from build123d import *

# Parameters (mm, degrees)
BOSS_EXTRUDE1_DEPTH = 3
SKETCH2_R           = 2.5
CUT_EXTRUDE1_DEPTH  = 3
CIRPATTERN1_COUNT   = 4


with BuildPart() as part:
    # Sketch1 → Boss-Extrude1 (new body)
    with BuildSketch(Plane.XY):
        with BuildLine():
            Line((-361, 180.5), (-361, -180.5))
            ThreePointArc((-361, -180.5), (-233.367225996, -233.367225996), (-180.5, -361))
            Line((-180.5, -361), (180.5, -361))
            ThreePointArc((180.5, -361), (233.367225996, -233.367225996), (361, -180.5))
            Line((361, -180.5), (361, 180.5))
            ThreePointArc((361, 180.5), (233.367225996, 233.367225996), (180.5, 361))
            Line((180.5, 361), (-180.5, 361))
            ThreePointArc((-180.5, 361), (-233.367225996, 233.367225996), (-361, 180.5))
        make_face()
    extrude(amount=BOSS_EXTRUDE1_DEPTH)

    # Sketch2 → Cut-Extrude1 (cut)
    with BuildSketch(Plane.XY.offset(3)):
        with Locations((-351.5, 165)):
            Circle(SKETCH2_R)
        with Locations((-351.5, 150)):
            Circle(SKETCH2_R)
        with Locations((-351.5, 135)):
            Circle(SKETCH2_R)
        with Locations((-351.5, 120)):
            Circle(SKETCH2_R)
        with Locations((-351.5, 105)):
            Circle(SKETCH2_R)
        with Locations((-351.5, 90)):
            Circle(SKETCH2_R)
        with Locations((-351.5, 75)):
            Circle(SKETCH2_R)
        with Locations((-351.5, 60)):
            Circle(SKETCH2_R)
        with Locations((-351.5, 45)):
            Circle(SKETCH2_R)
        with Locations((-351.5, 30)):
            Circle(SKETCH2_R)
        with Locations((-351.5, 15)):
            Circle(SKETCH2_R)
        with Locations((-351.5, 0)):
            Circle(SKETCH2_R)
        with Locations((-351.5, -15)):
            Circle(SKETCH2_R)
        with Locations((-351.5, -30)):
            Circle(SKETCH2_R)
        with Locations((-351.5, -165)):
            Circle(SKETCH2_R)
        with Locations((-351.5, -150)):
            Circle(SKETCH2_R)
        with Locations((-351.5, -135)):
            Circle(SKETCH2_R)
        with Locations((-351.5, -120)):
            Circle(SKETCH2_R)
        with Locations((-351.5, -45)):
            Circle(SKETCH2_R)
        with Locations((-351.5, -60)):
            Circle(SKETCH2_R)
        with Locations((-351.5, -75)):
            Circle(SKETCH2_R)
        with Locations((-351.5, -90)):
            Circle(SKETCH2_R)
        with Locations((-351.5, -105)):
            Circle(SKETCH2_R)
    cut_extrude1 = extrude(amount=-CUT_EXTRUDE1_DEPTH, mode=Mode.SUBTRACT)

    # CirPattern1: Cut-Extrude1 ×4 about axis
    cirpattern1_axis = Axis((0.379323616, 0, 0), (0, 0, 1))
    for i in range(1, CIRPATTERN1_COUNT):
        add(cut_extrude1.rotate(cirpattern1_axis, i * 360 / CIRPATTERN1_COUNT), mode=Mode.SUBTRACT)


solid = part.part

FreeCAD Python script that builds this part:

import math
import FreeCAD as App
import Part
import Sketcher

V = App.Vector

doc = App.newDocument("Part")
body = doc.addObject("PartDesign::Body", "Body")

# Sketch on XY plane
sketch1 = doc.addObject("Sketcher::SketchObject", "Sketch")
body.addObject(sketch1)
sketch1.AttachmentSupport = (doc.XY_Plane, [""])
sketch1.MapMode = "FlatFace"
sketch1.addGeometry(Part.LineSegment(V(-361, 180.5, 0), V(-361, -180.5, 0)), False)
sketch1.addGeometry(Part.ArcOfCircle(Part.Circle(V(-361, -361, 0), V(0, 0, 1), 180.5), math.radians(0), math.radians(90)), False)
sketch1.addGeometry(Part.LineSegment(V(-180.5, -361, 0), V(180.5, -361, 0)), False)
sketch1.addGeometry(Part.ArcOfCircle(Part.Circle(V(361, -361, 0), V(0, 0, 1), 180.5), math.radians(90), math.radians(180)), False)
sketch1.addGeometry(Part.LineSegment(V(361, -180.5, 0), V(361, 180.5, 0)), False)
sketch1.addGeometry(Part.ArcOfCircle(Part.Circle(V(361, 361, 0), V(0, 0, 1), 180.5), math.radians(-180), math.radians(-90)), False)
sketch1.addGeometry(Part.LineSegment(V(180.5, 361, 0), V(-180.5, 361, 0)), False)
sketch1.addGeometry(Part.ArcOfCircle(Part.Circle(V(-361, 361, 0), V(0, 0, 1), 180.5), math.radians(-90), math.radians(0)), False)
sketch1.addConstraint(Sketcher.Constraint("Coincident", 0, 2, 1, 2))
sketch1.addConstraint(Sketcher.Constraint("Coincident", 1, 1, 2, 1))
sketch1.addConstraint(Sketcher.Constraint("Coincident", 2, 2, 3, 2))
sketch1.addConstraint(Sketcher.Constraint("Coincident", 3, 1, 4, 1))
sketch1.addConstraint(Sketcher.Constraint("Coincident", 4, 2, 5, 2))
sketch1.addConstraint(Sketcher.Constraint("Coincident", 5, 1, 6, 1))
sketch1.addConstraint(Sketcher.Constraint("Coincident", 6, 2, 7, 2))
sketch1.addConstraint(Sketcher.Constraint("Coincident", 7, 1, 0, 1))
sketch1.addConstraint(Sketcher.Constraint("Vertical", 0))
sketch1.addConstraint(Sketcher.Constraint("Horizontal", 2))
sketch1.addConstraint(Sketcher.Constraint("Vertical", 4))
sketch1.addConstraint(Sketcher.Constraint("Horizontal", 6))
sketch1.addConstraint(Sketcher.Constraint("Equal", 1, 3))
sketch1.addConstraint(Sketcher.Constraint("Equal", 3, 5))
sketch1.addConstraint(Sketcher.Constraint("Equal", 5, 7))
sketch1.addConstraint(Sketcher.Constraint("Symmetric", 1, 3, 5, 3, -1, 1))
sketch1.addConstraint(Sketcher.Constraint("Symmetric", 3, 3, 7, 3, -1, 1))
sketch1.addConstraint(Sketcher.Constraint("Symmetric", 1, 3, 3, 3, -2))
sketch1.addConstraint(Sketcher.Constraint("Horizontal", 3, 3, 1, 1))
sketch1.addConstraint(Sketcher.Constraint("Horizontal", 7, 3, 5, 1))
sketch1.addConstraint(Sketcher.Constraint("Vertical", 7, 3, 0, 2))
sketch1.addConstraint(Sketcher.Constraint("Vertical", 5, 3, 3, 1))
sketch1.addConstraint(Sketcher.Constraint("Equal", 6, 0))
sketch1.addConstraint(Sketcher.Constraint("Radius", 1, 180.5))
sketch1.addConstraint(Sketcher.Constraint("DistanceX", 2, 1, 2, 2, 361.0))
pad1 = doc.addObject("PartDesign::Pad", "Pad")
body.addObject(pad1)
pad1.Profile = sketch1
pad1.Length = 3

# Sketch on XY plane
sketch2 = doc.addObject("Sketcher::SketchObject", "Sketch001")
body.addObject(sketch2)
sketch2.AttachmentSupport = (doc.XY_Plane, [""])
sketch2.MapMode = "FlatFace"
sketch2.AttachmentOffset = App.Placement(V(0, 0, 3), App.Rotation())
sketch2.addGeometry(Part.Circle(V(-351.5, 165, 0), V(0, 0, 1), 2.5), False)
sketch2.addGeometry(Part.Circle(V(-351.5, 150, 0), V(0, 0, 1), 2.5), False)
sketch2.addGeometry(Part.Circle(V(-351.5, 135, 0), V(0, 0, 1), 2.5), False)
sketch2.addGeometry(Part.Circle(V(-351.5, 120, 0), V(0, 0, 1), 2.5), False)
sketch2.addGeometry(Part.Circle(V(-351.5, 105, 0), V(0, 0, 1), 2.5), False)
sketch2.addGeometry(Part.Circle(V(-351.5, 90, 0), V(0, 0, 1), 2.5), False)
sketch2.addGeometry(Part.Circle(V(-351.5, 75, 0), V(0, 0, 1), 2.5), False)
sketch2.addGeometry(Part.Circle(V(-351.5, 60, 0), V(0, 0, 1), 2.5), False)
sketch2.addGeometry(Part.Circle(V(-351.5, 45, 0), V(0, 0, 1), 2.5), False)
sketch2.addGeometry(Part.Circle(V(-351.5, 30, 0), V(0, 0, 1), 2.5), False)
sketch2.addGeometry(Part.Circle(V(-351.5, 15, 0), V(0, 0, 1), 2.5), False)
sketch2.addGeometry(Part.Circle(V(-351.5, 0, 0), V(0, 0, 1), 2.5), False)
sketch2.addGeometry(Part.Circle(V(-351.5, -15, 0), V(0, 0, 1), 2.5), False)
sketch2.addGeometry(Part.Circle(V(-351.5, -30, 0), V(0, 0, 1), 2.5), False)
sketch2.addGeometry(Part.Circle(V(-351.5, -165, 0), V(0, 0, 1), 2.5), False)
sketch2.addGeometry(Part.Circle(V(-351.5, -150, 0), V(0, 0, 1), 2.5), False)
sketch2.addGeometry(Part.Circle(V(-351.5, -135, 0), V(0, 0, 1), 2.5), False)
sketch2.addGeometry(Part.Circle(V(-351.5, -120, 0), V(0, 0, 1), 2.5), False)
sketch2.addGeometry(Part.Circle(V(-351.5, -45, 0), V(0, 0, 1), 2.5), False)
sketch2.addGeometry(Part.Circle(V(-351.5, -60, 0), V(0, 0, 1), 2.5), False)
sketch2.addGeometry(Part.Circle(V(-351.5, -75, 0), V(0, 0, 1), 2.5), False)
sketch2.addGeometry(Part.Circle(V(-351.5, -90, 0), V(0, 0, 1), 2.5), False)
sketch2.addGeometry(Part.Circle(V(-351.5, -105, 0), V(0, 0, 1), 2.5), False)
sketch2.addConstraint(Sketcher.Constraint("Equal", 0, 1))
sketch2.addConstraint(Sketcher.Constraint("Equal", 1, 2))
sketch2.addConstraint(Sketcher.Constraint("Equal", 2, 3))
sketch2.addConstraint(Sketcher.Constraint("Equal", 3, 4))
sketch2.addConstraint(Sketcher.Constraint("Equal", 4, 5))
sketch2.addConstraint(Sketcher.Constraint("Equal", 5, 6))
sketch2.addConstraint(Sketcher.Constraint("Equal", 6, 7))
sketch2.addConstraint(Sketcher.Constraint("Equal", 7, 8))
sketch2.addConstraint(Sketcher.Constraint("Equal", 8, 9))
sketch2.addConstraint(Sketcher.Constraint("Equal", 9, 10))
sketch2.addConstraint(Sketcher.Constraint("Equal", 10, 11))
sketch2.addConstraint(Sketcher.Constraint("Equal", 11, 12))
sketch2.addConstraint(Sketcher.Constraint("Equal", 12, 13))
sketch2.addConstraint(Sketcher.Constraint("Equal", 13, 14))
sketch2.addConstraint(Sketcher.Constraint("Equal", 14, 15))
sketch2.addConstraint(Sketcher.Constraint("Equal", 15, 16))
sketch2.addConstraint(Sketcher.Constraint("Equal", 16, 17))
sketch2.addConstraint(Sketcher.Constraint("Equal", 17, 18))
sketch2.addConstraint(Sketcher.Constraint("Equal", 18, 19))
sketch2.addConstraint(Sketcher.Constraint("Equal", 19, 20))
sketch2.addConstraint(Sketcher.Constraint("Equal", 20, 21))
sketch2.addConstraint(Sketcher.Constraint("Equal", 21, 22))
sketch2.addConstraint(Sketcher.Constraint("Symmetric", 10, 3, 12, 3, -1))
sketch2.addConstraint(Sketcher.Constraint("Symmetric", 9, 3, 13, 3, -1))
sketch2.addConstraint(Sketcher.Constraint("Symmetric", 0, 3, 14, 3, -1))
sketch2.addConstraint(Sketcher.Constraint("Symmetric", 1, 3, 15, 3, -1))
sketch2.addConstraint(Sketcher.Constraint("Symmetric", 2, 3, 16, 3, -1))
sketch2.addConstraint(Sketcher.Constraint("Symmetric", 3, 3, 17, 3, -1))
sketch2.addConstraint(Sketcher.Constraint("Symmetric", 8, 3, 18, 3, -1))
sketch2.addConstraint(Sketcher.Constraint("Symmetric", 7, 3, 19, 3, -1))
sketch2.addConstraint(Sketcher.Constraint("Symmetric", 6, 3, 20, 3, -1))
sketch2.addConstraint(Sketcher.Constraint("Symmetric", 5, 3, 21, 3, -1))
sketch2.addConstraint(Sketcher.Constraint("Symmetric", 4, 3, 22, 3, -1))
sketch2.addConstraint(Sketcher.Constraint("PointOnObject", 11, 3, -1))
sketch2.addConstraint(Sketcher.Constraint("Vertical", 0, 3, 1, 3))
sketch2.addConstraint(Sketcher.Constraint("Vertical", 1, 3, 2, 3))
sketch2.addConstraint(Sketcher.Constraint("Vertical", 2, 3, 3, 3))
sketch2.addConstraint(Sketcher.Constraint("Vertical", 3, 3, 4, 3))
sketch2.addConstraint(Sketcher.Constraint("Vertical", 4, 3, 5, 3))
sketch2.addConstraint(Sketcher.Constraint("Vertical", 5, 3, 6, 3))
sketch2.addConstraint(Sketcher.Constraint("Vertical", 6, 3, 7, 3))
sketch2.addConstraint(Sketcher.Constraint("Vertical", 7, 3, 8, 3))
sketch2.addConstraint(Sketcher.Constraint("Vertical", 8, 3, 9, 3))
sketch2.addConstraint(Sketcher.Constraint("Vertical", 9, 3, 10, 3))
sketch2.addConstraint(Sketcher.Constraint("Vertical", 10, 3, 11, 3))
sketch2.addConstraint(Sketcher.Constraint("Diameter", 0, 5.0))
sketch2.addConstraint(Sketcher.Constraint("DistanceY", -1, 1, 0, 3, 165.0))
sketch2.addConstraint(Sketcher.Constraint("DistanceY", -1, 1, 1, 3, 150.0))
sketch2.addConstraint(Sketcher.Constraint("DistanceY", -1, 1, 2, 3, 135.0))
sketch2.addConstraint(Sketcher.Constraint("DistanceY", -1, 1, 3, 3, 120.0))
sketch2.addConstraint(Sketcher.Constraint("DistanceY", -1, 1, 4, 3, 105.0))
sketch2.addConstraint(Sketcher.Constraint("DistanceY", -1, 1, 5, 3, 90.0))
sketch2.addConstraint(Sketcher.Constraint("DistanceY", -1, 1, 6, 3, 75.0))
sketch2.addConstraint(Sketcher.Constraint("DistanceY", -1, 1, 7, 3, 60.0))
sketch2.addConstraint(Sketcher.Constraint("DistanceY", -1, 1, 8, 3, 45.0))
sketch2.addConstraint(Sketcher.Constraint("DistanceY", -1, 1, 9, 3, 30.0))
sketch2.addConstraint(Sketcher.Constraint("DistanceY", -1, 1, 10, 3, 15.0))
sketch2.addConstraint(Sketcher.Constraint("DistanceX", 0, 3, -1, 1, 351.5))
pocket1 = doc.addObject("PartDesign::Pocket", "Pocket")
body.addObject(pocket1)
pocket1.Profile = sketch2
pocket1.Length = 3
doc.recompute()

datumline = doc.addObject("PartDesign::Line", "DatumLine")
body.addObject(datumline)
datumline.Placement = App.Placement(V(0.379324, 0, 0), App.Rotation(V(0, 0, 1), V(0, 0, 1)))
polarpattern = doc.addObject("PartDesign::PolarPattern", "PolarPattern")
body.addObject(polarpattern)
polarpattern.Originals = [pocket1]
polarpattern.Axis = (datumline, [""])
polarpattern.Angle = 360
polarpattern.Occurrences = 4
body.Tip = polarpattern

doc.recompute()
